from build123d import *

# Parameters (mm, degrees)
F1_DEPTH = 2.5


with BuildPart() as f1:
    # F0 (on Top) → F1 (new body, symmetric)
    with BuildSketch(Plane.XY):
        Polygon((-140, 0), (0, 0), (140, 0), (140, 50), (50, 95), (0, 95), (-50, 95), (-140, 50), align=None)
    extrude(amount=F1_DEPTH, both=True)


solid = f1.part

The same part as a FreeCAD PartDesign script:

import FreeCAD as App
import Part
import Sketcher
from FreeCAD import Vector

doc = App.newDocument("Part")
body = doc.addObject("PartDesign::Body", "Body")

# Sketch on XY plane
sketch1 = body.newObject("Sketcher::SketchObject", "Sketch")
sketch1.AttachmentSupport = (doc.getObject("XY_Plane"), [""])
sketch1.MapMode = "FlatFace"
sketch1.addGeometry([
    Part.LineSegment(Vector(-140, 0, 0), Vector(140, 0, 0)),  # 0
    Part.LineSegment(Vector(140, 0, 0), Vector(140, 50, 0)),  # 1
    Part.LineSegment(Vector(140, 50, 0), Vector(50, 95, 0)),  # 2
    Part.LineSegment(Vector(50, 95, 0), Vector(-50, 95, 0)),  # 3
    Part.LineSegment(Vector(-50, 95, 0), Vector(-140, 50, 0)),  # 4
    Part.LineSegment(Vector(-140, 50, 0), Vector(-140, 0, 0)),  # 5
], False)
sketch1.addConstraint([
    Sketcher.Constraint("Coincident", 0, 2, 1, 1),
    Sketcher.Constraint("Coincident", 1, 2, 2, 1),
    Sketcher.Constraint("Coincident", 2, 2, 3, 1),
    Sketcher.Constraint("Coincident", 3, 2, 4, 1),
    Sketcher.Constraint("Coincident", 4, 2, 5, 1),
    Sketcher.Constraint("Coincident", 5, 2, 0, 1),
    Sketcher.Constraint("Horizontal", 0),
    Sketcher.Constraint("Vertical", 1),
    Sketcher.Constraint("Horizontal", 3),
    Sketcher.Constraint("Vertical", 5),
    Sketcher.Constraint("Symmetric", 0, 2, 5, 2, -1, 1),
    Sketcher.Constraint("Horizontal", 1, 2, 4, 2),
    Sketcher.Constraint("Equal", 2, 4),
    Sketcher.Constraint("DistanceX", 0, 1, 0, 2, 280.0),
    Sketcher.Constraint("DistanceX", 3, 2, 3, 1, 100.0),
    Sketcher.Constraint("DistanceY", 1, 1, 1, 2, 50.0),
    Sketcher.Constraint("DistanceY", -1, 1, 2, 2, 95.0),
])
pad1 = body.newObject("PartDesign::Pad", "Pad")
pad1.Profile = sketch1
pad1.Length = 5
pad1.Midplane = True

doc.recompute()
